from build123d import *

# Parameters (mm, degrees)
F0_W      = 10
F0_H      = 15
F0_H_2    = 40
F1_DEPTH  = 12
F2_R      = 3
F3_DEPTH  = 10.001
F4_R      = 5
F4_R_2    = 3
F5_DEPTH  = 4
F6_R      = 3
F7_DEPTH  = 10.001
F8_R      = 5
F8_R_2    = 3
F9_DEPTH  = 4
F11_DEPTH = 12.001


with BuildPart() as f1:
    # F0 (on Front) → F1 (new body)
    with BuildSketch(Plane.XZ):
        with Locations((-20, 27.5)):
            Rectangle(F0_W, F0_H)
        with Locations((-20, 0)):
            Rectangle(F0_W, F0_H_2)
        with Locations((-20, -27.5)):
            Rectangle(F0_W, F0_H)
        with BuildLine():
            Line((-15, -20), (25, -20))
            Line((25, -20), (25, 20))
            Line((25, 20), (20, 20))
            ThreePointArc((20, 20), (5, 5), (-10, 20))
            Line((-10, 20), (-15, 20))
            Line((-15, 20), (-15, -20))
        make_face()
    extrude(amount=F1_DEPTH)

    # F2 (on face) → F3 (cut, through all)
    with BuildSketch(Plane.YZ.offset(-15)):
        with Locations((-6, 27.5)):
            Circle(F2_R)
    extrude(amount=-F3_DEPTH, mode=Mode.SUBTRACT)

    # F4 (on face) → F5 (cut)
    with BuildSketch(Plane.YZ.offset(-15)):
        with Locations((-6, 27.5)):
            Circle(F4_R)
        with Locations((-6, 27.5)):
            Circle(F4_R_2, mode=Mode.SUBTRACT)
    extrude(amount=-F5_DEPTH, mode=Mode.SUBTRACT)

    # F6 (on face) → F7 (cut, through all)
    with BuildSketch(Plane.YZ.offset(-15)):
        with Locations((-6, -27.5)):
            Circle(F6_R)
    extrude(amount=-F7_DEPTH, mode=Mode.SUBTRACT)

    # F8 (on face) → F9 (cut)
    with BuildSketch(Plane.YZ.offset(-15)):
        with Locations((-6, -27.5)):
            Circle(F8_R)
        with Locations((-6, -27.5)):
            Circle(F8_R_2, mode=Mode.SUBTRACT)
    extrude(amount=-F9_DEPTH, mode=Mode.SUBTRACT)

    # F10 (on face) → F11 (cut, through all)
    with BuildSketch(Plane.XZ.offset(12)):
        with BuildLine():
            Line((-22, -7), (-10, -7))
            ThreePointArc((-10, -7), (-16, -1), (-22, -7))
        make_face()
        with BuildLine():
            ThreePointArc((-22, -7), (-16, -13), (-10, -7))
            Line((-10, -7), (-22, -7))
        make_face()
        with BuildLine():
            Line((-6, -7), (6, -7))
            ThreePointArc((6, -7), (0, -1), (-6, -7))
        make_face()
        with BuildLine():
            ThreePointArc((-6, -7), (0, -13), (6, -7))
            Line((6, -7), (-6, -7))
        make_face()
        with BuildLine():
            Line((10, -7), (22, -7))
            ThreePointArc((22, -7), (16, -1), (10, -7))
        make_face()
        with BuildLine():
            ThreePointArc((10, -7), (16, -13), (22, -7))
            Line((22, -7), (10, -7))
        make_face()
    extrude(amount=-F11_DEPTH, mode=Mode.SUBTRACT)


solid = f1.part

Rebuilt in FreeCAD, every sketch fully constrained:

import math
import FreeCAD as App
import Part
import Sketcher
from FreeCAD import Vector

doc = App.newDocument("Part")
params = doc.addObject("Spreadsheet::Sheet", "Params")
for row, (alias, value) in enumerate([
    ("sketch1_radius", "15 mm"),
    ("sketch1_width", "10 mm"),
    ("sketch1_width2", "40 mm"),
    ("sketch1_height", "70 mm"),
    ("pad1_length", "12 mm"),
    ("sketch2_diameter", "6 mm"),
    ("sketch3_diameter", "10 mm"),
    ("sketch3_diameter2", "6 mm"),
    ("pocket2_length", "4 mm"),
    ("sketch4_diameter", "6 mm"),
    ("sketch5_diameter", "10 mm"),
    ("sketch5_diameter2", "6 mm"),
    ("pocket4_length", "4 mm"),
    ("sketch6_diameter", "12 mm"),
], start=1):
    params.set(f"A{row}", alias)
    params.set(f"B{row}", "=" + value)
    params.setAlias(f"B{row}", alias)

body = doc.addObject("PartDesign::Body", "Body")

# Sketch on XZ plane
sketch1 = body.newObject("Sketcher::SketchObject", "Sketch")
sketch1.AttachmentSupport = (doc.getObject("XZ_Plane"), [""])
sketch1.MapMode = "FlatFace"
sketch1.addGeometry(Part.LineSegment(Vector(-25, 35, 0), Vector(-25, -35, 0)), False)
sketch1.addGeometry(Part.LineSegment(Vector(-25, -35, 0), Vector(-15, -35, 0)), False)
sketch1.addGeometry(Part.LineSegment(Vector(-15, -35, 0), Vector(-15, -20, 0)), False)
sketch1.addGeometry(Part.LineSegment(Vector(-15, -20, 0), Vector(25, -20, 0)), False)
sketch1.addGeometry(Part.LineSegment(Vector(25, -20, 0), Vector(25, 20, 0)), False)
sketch1.addGeometry(Part.LineSegment(Vector(25, 20, 0), Vector(20, 20, 0)), False)
sketch1.addGeometry(Part.ArcOfCircle(Part.Circle(Vector(5, 20, 0), Vector(0, 0, 1), 15), math.radians(180), math.radians(360)), False)
sketch1.addGeometry(Part.LineSegment(Vector(-10, 20, 0), Vector(-15, 20, 0)), False)
sketch1.addGeometry(Part.LineSegment(Vector(-15, 20, 0), Vector(-15, 35, 0)), False)
sketch1.addGeometry(Part.LineSegment(Vector(-15, 35, 0), Vector(-25, 35, 0)), False)
sketch1.addConstraint(Sketcher.Constraint("Coincident", 0, 2, 1, 1))
sketch1.addConstraint(Sketcher.Constraint("Coincident", 1, 2, 2, 1))
sketch1.addConstraint(Sketcher.Constraint("Coincident", 2, 2, 3, 1))
sketch1.addConstraint(Sketcher.Constraint("Coincident", 3, 2, 4, 1))
sketch1.addConstraint(Sketcher.Constraint("Coincident", 4, 2, 5, 1))
sketch1.addConstraint(Sketcher.Constraint("Coincident", 5, 2, 6, 2))
sketch1.addConstraint(Sketcher.Constraint("Coincident", 6, 1, 7, 1))
sketch1.addConstraint(Sketcher.Constraint("Coincident", 7, 2, 8, 1))
sketch1.addConstraint(Sketcher.Constraint("Coincident", 8, 2, 9, 1))
sketch1.addConstraint(Sketcher.Constraint("Coincident", 9, 2, 0, 1))
sketch1.addConstraint(Sketcher.Constraint("Vertical", 0))
sketch1.addConstraint(Sketcher.Constraint("Horizontal", 1))
sketch1.addConstraint(Sketcher.Constraint("Vertical", 2))
sketch1.addConstraint(Sketcher.Constraint("Horizontal", 3))
sketch1.addConstraint(Sketcher.Constraint("Vertical", 4))
sketch1.addConstraint(Sketcher.Constraint("Horizontal", 5))
sketch1.addConstraint(Sketcher.Constraint("Horizontal", 7))
sketch1.addConstraint(Sketcher.Constraint("Vertical", 8))
sketch1.addConstraint(Sketcher.Constraint("Horizontal", 9))
sketch1.addConstraint(Sketcher.Constraint("Symmetric", 2, 2, 7, 2, -1))
sketch1.addConstraint(Sketcher.Constraint("Horizontal", 6, 3, 4, 2))
sketch1.addConstraint(Sketcher.Constraint("Horizontal", 5, 2, 6, 1))
sketch1.addConstraint(Sketcher.Constraint("Equal", 5, 7))
sketch1.addConstraint(Sketcher.Constraint("Equal", 3, 4))
sketch1.addConstraint(Sketcher.Constraint("Equal", 2, 8))
sketch1.addConstraint(Sketcher.Constraint("Radius", 6, 15.0))
sketch1.addConstraint(Sketcher.Constraint("DistanceX", 1, 1, 1, 2, 10.0))
sketch1.addConstraint(Sketcher.Constraint("DistanceX", 3, 1, 3, 2, 40.0))
sketch1.addConstraint(Sketcher.Constraint("DistanceY", 0, 2, 0, 1, 70.0))
sketch1.addConstraint(Sketcher.Constraint("DistanceX", -1, 1, 6, 3, 5.0))
sketch1.setExpression("Constraints[25]", "Params.sketch1_radius")
sketch1.setExpression("Constraints[26]", "Params.sketch1_width")
sketch1.setExpression("Constraints[27]", "Params.sketch1_width2")
sketch1.setExpression("Constraints[28]", "Params.sketch1_height")
pad1 = body.newObject("PartDesign::Pad", "Pad")
pad1.Profile = sketch1
pad1.setExpression("Length", "Params.pad1_length")

# Sketch on YZ plane
sketch2 = body.newObject("Sketcher::SketchObject", "Sketch001")
sketch2.AttachmentSupport = (doc.getObject("YZ_Plane"), [""])
sketch2.MapMode = "FlatFace"
sketch2.AttachmentOffset = App.Placement(Vector(0, 0, -15), App.Rotation())
sketch2.addGeometry(Part.Circle(Vector(-6, 27.5, 0), Vector(0, 0, 1), 3), False)
sketch2.addConstraint(Sketcher.Constraint("Diameter", 0, 6.0))
sketch2.addConstraint(Sketcher.Constraint("DistanceX", 0, 3, -1, 1, 6.0))
sketch2.addConstraint(Sketcher.Constraint("DistanceY", -1, 1, 0, 3, 27.5))
sketch2.setExpression("Constraints[0]", "Params.sketch2_diameter")
pocket1 = body.newObject("PartDesign::Pocket", "Pocket")
pocket1.Profile = sketch2
pocket1.Type = "ThroughAll"

# Sketch on YZ plane
sketch3 = body.newObject("Sketcher::SketchObject", "Sketch002")
sketch3.AttachmentSupport = (doc.getObject("YZ_Plane"), [""])
sketch3.MapMode = "FlatFace"
sketch3.AttachmentOffset = App.Placement(Vector(0, 0, -15), App.Rotation())
sketch3.addGeometry(Part.Circle(Vector(-6, 27.5, 0), Vector(0, 0, 1), 5), False)
sketch3.addGeometry(Part.Circle(Vector(-6, 27.5, 0), Vector(0, 0, 1), 3), False)
sketch3.addConstraint(Sketcher.Constraint("Coincident", 1, 3, 0, 3))
sketch3.addConstraint(Sketcher.Constraint("Diameter", 0, 10.0))
sketch3.addConstraint(Sketcher.Constraint("Diameter", 1, 6.0))
sketch3.addConstraint(Sketcher.Constraint("DistanceX", 0, 3, -1, 1, 6.0))
sketch3.addConstraint(Sketcher.Constraint("DistanceY", -1, 1, 0, 3, 27.5))
sketch3.setExpression("Constraints[1]", "Params.sketch3_diameter")
sketch3.setExpression("Constraints[2]", "Params.sketch3_diameter2")
pocket2 = body.newObject("PartDesign::Pocket", "Pocket001")
pocket2.Profile = sketch3
pocket2.setExpression("Length", "Params.pocket2_length")

# Sketch on YZ plane
sketch4 = body.newObject("Sketcher::SketchObject", "Sketch003")
sketch4.AttachmentSupport = (doc.getObject("YZ_Plane"), [""])
sketch4.MapMode = "FlatFace"
sketch4.AttachmentOffset = App.Placement(Vector(0, 0, -15), App.Rotation())
sketch4.addGeometry(Part.Circle(Vector(-6, -27.5, 0), Vector(0, 0, 1), 3), False)
sketch4.addConstraint(Sketcher.Constraint("Diameter", 0, 6.0))
sketch4.addConstraint(Sketcher.Constraint("DistanceX", 0, 3, -1, 1, 6.0))
sketch4.addConstraint(Sketcher.Constraint("DistanceY", 0, 3, -1, 1, 27.5))
sketch4.setExpression("Constraints[0]", "Params.sketch4_diameter")
pocket3 = body.newObject("PartDesign::Pocket", "Pocket002")
pocket3.Profile = sketch4
pocket3.Type = "ThroughAll"

# Sketch on YZ plane
sketch5 = body.newObject("Sketcher::SketchObject", "Sketch004")
sketch5.AttachmentSupport = (doc.getObject("YZ_Plane"), [""])
sketch5.MapMode = "FlatFace"
sketch5.AttachmentOffset = App.Placement(Vector(0, 0, -15), App.Rotation())
sketch5.addGeometry(Part.Circle(Vector(-6, -27.5, 0), Vector(0, 0, 1), 5), False)
sketch5.addGeometry(Part.Circle(Vector(-6, -27.5, 0), Vector(0, 0, 1), 3), False)
sketch5.addConstraint(Sketcher.Constraint("Coincident", 1, 3, 0, 3))
sketch5.addConstraint(Sketcher.Constraint("Diameter", 0, 10.0))
sketch5.addConstraint(Sketcher.Constraint("Diameter", 1, 6.0))
sketch5.addConstraint(Sketcher.Constraint("DistanceX", 0, 3, -1, 1, 6.0))
sketch5.addConstraint(Sketcher.Constraint("DistanceY", 0, 3, -1, 1, 27.5))
sketch5.setExpression("Constraints[1]", "Params.sketch5_diameter")
sketch5.setExpression("Constraints[2]", "Params.sketch5_diameter2")
pocket4 = body.newObject("PartDesign::Pocket", "Pocket003")
pocket4.Profile = sketch5
pocket4.setExpression("Length", "Params.pocket4_length")

# Sketch on XZ plane
sketch6 = body.newObject("Sketcher::SketchObject", "Sketch005")
sketch6.AttachmentSupport = (doc.getObject("XZ_Plane"), [""])
sketch6.MapMode = "FlatFace"
sketch6.AttachmentOffset = App.Placement(Vector(0, 0, 12), App.Rotation())
sketch6.addGeometry(Part.Circle(Vector(-16, -7, 0), Vector(0, 0, 1), 6), False)
sketch6.addGeometry(Part.Circle(Vector(0, -7, 0), Vector(0, 0, 1), 6), False)
sketch6.addGeometry(Part.Circle(Vector(16, -7, 0), Vector(0, 0, 1), 6), False)
sketch6.addConstraint(Sketcher.Constraint("Equal", 0, 1))
sketch6.addConstraint(Sketcher.Constraint("Equal", 1, 2))
sketch6.addConstraint(Sketcher.Constraint("Symmetric", 0, 3, 2, 3, -2))
sketch6.addConstraint(Sketcher.Constraint("PointOnObject", 1, 3, -2))
sketch6.addConstraint(Sketcher.Constraint("Horizontal", 0, 3, 1, 3))
sketch6.addConstraint(Sketcher.Constraint("Diameter", 0, 12.0))
sketch6.addConstraint(Sketcher.Constraint("DistanceX", 0, 3, -1, 1, 16.0))
sketch6.addConstraint(Sketcher.Constraint("DistanceY", 0, 3, -1, 1, 7.0))
sketch6.setExpression("Constraints[5]", "Params.sketch6_diameter")
pocket5 = body.newObject("PartDesign::Pocket", "Pocket004")
pocket5.Profile = sketch6
pocket5.Type = "ThroughAll"

doc.recompute()
